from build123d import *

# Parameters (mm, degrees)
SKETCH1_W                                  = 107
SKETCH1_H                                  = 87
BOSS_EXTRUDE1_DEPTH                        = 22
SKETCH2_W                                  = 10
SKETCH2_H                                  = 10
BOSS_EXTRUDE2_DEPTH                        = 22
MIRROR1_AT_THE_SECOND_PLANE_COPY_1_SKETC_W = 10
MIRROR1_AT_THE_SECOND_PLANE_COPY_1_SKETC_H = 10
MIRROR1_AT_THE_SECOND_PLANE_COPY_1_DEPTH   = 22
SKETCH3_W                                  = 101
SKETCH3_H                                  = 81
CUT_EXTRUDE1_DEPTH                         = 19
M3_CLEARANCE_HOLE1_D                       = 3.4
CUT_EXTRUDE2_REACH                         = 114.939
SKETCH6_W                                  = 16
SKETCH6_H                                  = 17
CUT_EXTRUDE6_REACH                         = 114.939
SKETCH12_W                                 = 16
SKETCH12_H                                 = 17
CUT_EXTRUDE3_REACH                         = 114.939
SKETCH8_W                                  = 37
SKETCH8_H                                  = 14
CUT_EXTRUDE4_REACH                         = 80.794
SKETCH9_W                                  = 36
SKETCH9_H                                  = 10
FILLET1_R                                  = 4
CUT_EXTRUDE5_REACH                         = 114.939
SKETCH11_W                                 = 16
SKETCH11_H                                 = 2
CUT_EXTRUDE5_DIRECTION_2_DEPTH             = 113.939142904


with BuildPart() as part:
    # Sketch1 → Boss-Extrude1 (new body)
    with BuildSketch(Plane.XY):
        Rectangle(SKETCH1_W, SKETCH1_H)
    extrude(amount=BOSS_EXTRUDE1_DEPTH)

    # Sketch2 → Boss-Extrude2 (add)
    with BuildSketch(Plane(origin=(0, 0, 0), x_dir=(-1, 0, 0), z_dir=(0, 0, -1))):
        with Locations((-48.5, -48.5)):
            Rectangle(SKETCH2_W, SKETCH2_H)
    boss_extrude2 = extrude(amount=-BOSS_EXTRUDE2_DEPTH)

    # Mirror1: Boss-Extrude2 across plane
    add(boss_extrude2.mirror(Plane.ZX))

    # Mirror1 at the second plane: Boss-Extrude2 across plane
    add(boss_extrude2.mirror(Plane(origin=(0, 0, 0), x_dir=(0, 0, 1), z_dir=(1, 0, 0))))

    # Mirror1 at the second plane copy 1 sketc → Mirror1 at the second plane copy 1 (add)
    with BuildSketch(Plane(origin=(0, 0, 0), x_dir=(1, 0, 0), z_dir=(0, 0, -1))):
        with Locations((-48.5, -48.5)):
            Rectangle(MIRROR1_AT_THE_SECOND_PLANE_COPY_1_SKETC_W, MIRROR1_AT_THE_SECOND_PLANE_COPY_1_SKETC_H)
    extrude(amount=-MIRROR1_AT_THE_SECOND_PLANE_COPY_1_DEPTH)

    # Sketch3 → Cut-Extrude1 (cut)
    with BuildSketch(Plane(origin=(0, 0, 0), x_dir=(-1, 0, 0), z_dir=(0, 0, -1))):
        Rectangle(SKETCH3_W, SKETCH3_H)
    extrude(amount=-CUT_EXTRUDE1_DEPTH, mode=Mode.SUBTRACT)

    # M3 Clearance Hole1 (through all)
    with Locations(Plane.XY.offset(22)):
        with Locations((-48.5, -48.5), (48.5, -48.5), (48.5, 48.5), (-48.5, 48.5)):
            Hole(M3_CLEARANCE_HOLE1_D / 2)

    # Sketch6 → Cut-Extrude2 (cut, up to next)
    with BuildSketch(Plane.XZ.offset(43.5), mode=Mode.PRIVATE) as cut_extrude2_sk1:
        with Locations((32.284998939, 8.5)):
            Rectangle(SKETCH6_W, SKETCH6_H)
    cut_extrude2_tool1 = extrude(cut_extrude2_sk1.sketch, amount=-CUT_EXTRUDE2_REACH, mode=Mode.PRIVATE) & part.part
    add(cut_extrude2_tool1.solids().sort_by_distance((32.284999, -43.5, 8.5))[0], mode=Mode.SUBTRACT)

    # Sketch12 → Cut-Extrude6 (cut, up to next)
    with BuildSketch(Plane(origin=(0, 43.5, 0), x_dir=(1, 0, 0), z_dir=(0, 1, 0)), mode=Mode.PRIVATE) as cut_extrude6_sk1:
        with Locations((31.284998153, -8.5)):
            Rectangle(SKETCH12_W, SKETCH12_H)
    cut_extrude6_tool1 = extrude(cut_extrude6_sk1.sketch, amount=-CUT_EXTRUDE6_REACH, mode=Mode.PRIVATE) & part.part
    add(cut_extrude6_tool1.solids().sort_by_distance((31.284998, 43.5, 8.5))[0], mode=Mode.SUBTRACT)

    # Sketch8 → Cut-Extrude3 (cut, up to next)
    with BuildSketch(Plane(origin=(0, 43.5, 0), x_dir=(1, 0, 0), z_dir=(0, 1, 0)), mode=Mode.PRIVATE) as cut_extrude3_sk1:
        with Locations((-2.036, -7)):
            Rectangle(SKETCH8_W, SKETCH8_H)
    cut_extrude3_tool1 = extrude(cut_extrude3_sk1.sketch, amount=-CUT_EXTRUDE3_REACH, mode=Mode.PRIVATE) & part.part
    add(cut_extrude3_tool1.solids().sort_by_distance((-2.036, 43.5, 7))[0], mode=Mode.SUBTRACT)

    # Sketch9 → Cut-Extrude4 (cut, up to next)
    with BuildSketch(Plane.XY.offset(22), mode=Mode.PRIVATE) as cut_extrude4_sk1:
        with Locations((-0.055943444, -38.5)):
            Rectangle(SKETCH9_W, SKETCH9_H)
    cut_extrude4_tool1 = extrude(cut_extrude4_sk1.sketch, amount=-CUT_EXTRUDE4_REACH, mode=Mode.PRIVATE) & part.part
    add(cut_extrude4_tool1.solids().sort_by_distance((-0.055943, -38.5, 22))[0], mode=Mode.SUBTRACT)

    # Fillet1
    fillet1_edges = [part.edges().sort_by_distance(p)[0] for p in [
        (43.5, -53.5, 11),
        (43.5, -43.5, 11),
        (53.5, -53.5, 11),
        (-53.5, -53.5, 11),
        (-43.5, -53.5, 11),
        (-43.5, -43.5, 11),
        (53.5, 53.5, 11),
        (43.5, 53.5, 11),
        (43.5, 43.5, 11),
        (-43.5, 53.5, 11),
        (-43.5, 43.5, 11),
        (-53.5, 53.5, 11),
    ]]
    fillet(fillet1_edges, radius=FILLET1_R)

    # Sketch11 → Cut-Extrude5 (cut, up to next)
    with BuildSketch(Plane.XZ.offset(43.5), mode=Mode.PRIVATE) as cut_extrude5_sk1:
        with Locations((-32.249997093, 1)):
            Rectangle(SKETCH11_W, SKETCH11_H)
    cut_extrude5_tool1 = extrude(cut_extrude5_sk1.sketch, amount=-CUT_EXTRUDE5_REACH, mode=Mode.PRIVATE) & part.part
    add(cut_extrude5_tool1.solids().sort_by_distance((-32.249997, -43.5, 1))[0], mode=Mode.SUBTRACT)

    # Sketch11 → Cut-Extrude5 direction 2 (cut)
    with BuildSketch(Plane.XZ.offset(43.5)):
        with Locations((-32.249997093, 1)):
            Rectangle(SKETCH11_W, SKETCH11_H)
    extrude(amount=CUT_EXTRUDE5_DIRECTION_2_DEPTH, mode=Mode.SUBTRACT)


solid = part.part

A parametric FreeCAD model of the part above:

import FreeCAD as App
import Part
import Sketcher
Q = App.Units.Quantity


def edges_at(feature, points):
    """Names of the edges that pass closest to the given points."""
    edges = feature.Shape.Edges
    near = lambda p: min(range(len(edges)), key=lambda i: edges[i].distToShape(Part.Vertex(*p))[0])
    return sorted({f"Edge{near(p) + 1}" for p in points})


def add_polygon(sketch, points):
    """Adds a closed chain of lines whose ends are joined by coincident constraints."""
    first, n = sketch.GeometryCount, len(points)
    for a, b in zip(points, points[1:] + points[:1]):
        sketch.addGeometry(Part.LineSegment(App.Vector(*a, 0), App.Vector(*b, 0)), False)
    for i in range(n):
        sketch.addConstraint(Sketcher.Constraint("Coincident", first + i, 2, first + (i + 1) % n, 1))

doc = App.newDocument("Part")
body = doc.addObject("PartDesign::Body", "Body")

# Sketch on XY plane
sketch1 = body.newObject("Sketcher::SketchObject", "Sketch")
sketch1.AttachmentSupport = (doc.getObject("XY_Plane"), [""])
sketch1.MapMode = "FlatFace"
add_polygon(sketch1, [(-54, 44), (-54, -44), (54, -44), (54, 44)])  # lines 0-3
sketch1.addConstraint([
    Sketcher.Constraint("Vertical", 0),
    Sketcher.Constraint("Horizontal", 1),
    Sketcher.Constraint("Vertical", 2),
    Sketcher.Constraint("Horizontal", 3),
    Sketcher.Constraint("Symmetric", 0, 2, 2, 2, -1, 1),
    Sketcher.Constraint("DistanceX", 1, 1, 1, 2, Q("107 mm")),
    Sketcher.Constraint("DistanceY", 0, 2, 0, 1, Q("87 mm")),
])
pad1 = body.newObject("PartDesign::Pad", "Pad")
pad1.Profile = sketch1
pad1.Length = 22

# Sketch on XY plane
sketch2 = body.newObject("Sketcher::SketchObject", "Sketch001")
sketch2.AttachmentSupport = (doc.getObject("XY_Plane"), [""])
sketch2.MapMode = "FlatFace"
add_polygon(sketch2, [(54, -44), (54, -54), (44, -54), (44, -44)])  # lines 0-3
sketch2.addConstraint([
    Sketcher.Constraint("Vertical", 0),
    Sketcher.Constraint("Horizontal", 1),
    Sketcher.Constraint("Vertical", 2),
    Sketcher.Constraint("Horizontal", 3),
    Sketcher.Constraint("Equal", 3, 0),
    Sketcher.Constraint("DistanceX", 1, 2, 1, 1, Q("10 mm")),
    Sketcher.Constraint("DistanceX", -1, 1, 0, 2, Q("53.5 mm")),
    Sketcher.Constraint("DistanceY", 0, 2, -1, 1, Q("53.5 mm")),
])
pad2 = body.newObject("PartDesign::Pad", "Pad001")
pad2.Profile = sketch2
pad2.Length = 22
doc.recompute()

mirrored = body.newObject("PartDesign::Mirrored", "Mirrored")
mirrored.Originals = [pad2]
mirrored.MirrorPlane = (doc.getObject("XZ_Plane"), [""])
body.Tip = mirrored
doc.recompute()

mirrored2 = body.newObject("PartDesign::Mirrored", "Mirrored001")
mirrored2.Originals = [pad2]
mirrored2.MirrorPlane = (doc.getObject("YZ_Plane"), [""])
body.Tip = mirrored2

# Sketch on XY plane
sketch3 = body.newObject("Sketcher::SketchObject", "Sketch002")
sketch3.AttachmentSupport = (doc.getObject("XY_Plane"), [""])
sketch3.MapMode = "FlatFace"
add_polygon(sketch3, [(-54, 44), (-54, 54), (-44, 54), (-44, 44)])  # lines 0-3
sketch3.addConstraint([
    Sketcher.Constraint("Vertical", 0),
    Sketcher.Constraint("Horizontal", 1),
    Sketcher.Constraint("Vertical", 2),
    Sketcher.Constraint("Horizontal", 3),
    Sketcher.Constraint("Equal", 3, 0),
    Sketcher.Constraint("DistanceX", 1, 1, 1, 2, Q("10 mm")),
    Sketcher.Constraint("DistanceX", 0, 2, -1, 1, Q("53.5 mm")),
    Sketcher.Constraint("DistanceY", -1, 1, 0, 2, Q("53.5 mm")),
])
pad3 = body.newObject("PartDesign::Pad", "Pad002")
pad3.Profile = sketch3
pad3.Length = 22

# Sketch on XY plane
sketch4 = body.newObject("Sketcher::SketchObject", "Sketch003")
sketch4.AttachmentSupport = (doc.getObject("XY_Plane"), [""])
sketch4.MapMode = "FlatFace"
add_polygon(sketch4, [(50, 40), (50, -40), (-50, -40), (-50, 40)])  # lines 0-3
sketch4.addConstraint([
    Sketcher.Constraint("Vertical", 0),
    Sketcher.Constraint("Horizontal", 1),
    Sketcher.Constraint("Vertical", 2),
    Sketcher.Constraint("Horizontal", 3),
    Sketcher.Constraint("Symmetric", 0, 2, 2, 2, -1, 1),
    Sketcher.Constraint("DistanceX", 1, 2, 1, 1, Q("101 mm")),
    Sketcher.Constraint("DistanceY", 0, 2, 0, 1, Q("81 mm")),
])
pocket1 = body.newObject("PartDesign::Pocket", "Pocket")
pocket1.Profile = sketch4
pocket1.Length = 19
pocket1.Reversed = True

# Sketch on XY plane
sketch5 = body.newObject("Sketcher::SketchObject", "Sketch004")
sketch5.AttachmentSupport = (doc.getObject("XY_Plane"), [""])
sketch5.MapMode = "FlatFace"
sketch5.AttachmentOffset = App.Placement(App.Vector(0, 0, 22), App.Rotation())
sketch5.addGeometry([
    Part.Circle(App.Vector(-48.5, -48.5, 0), App.Vector(0, 0, 1), 1.7),
    Part.Circle(App.Vector(48.5, -48.5, 0), App.Vector(0, 0, 1), 1.7),
    Part.Circle(App.Vector(48.5, 48.5, 0), App.Vector(0, 0, 1), 1.7),
    Part.Circle(App.Vector(-48.5, 48.5, 0), App.Vector(0, 0, 1), 1.7),
], False)
sketch5.addConstraint([
    Sketcher.Constraint("Equal", 0, 1),
    Sketcher.Constraint("Equal", 1, 2),
    Sketcher.Constraint("Equal", 2, 3),
    Sketcher.Constraint("Symmetric", 0, 3, 2, 3, -1, 1),
    Sketcher.Constraint("Symmetric", 1, 3, 3, 3, -1, 1),
    Sketcher.Constraint("Symmetric", 0, 3, 1, 3, -2),
    Sketcher.Constraint("Diameter", 0, Q("3.4 mm")),
    Sketcher.Constraint("DistanceX", 0, 3, 1, 3, Q("97 mm")),
    Sketcher.Constraint("DistanceY", 1, 3, 2, 3, Q("97 mm")),
])
doc.recompute()
hole = body.newObject("PartDesign::Hole", "Hole")
hole.Profile = sketch5
hole.ThreadType = "None"
hole.Diameter = 3.4
hole.DepthType = "ThroughAll"

# Sketch on XZ plane
sketch6 = body.newObject("Sketcher::SketchObject", "Sketch005")
sketch6.AttachmentSupport = (doc.getObject("XZ_Plane"), [""])
sketch6.MapMode = "FlatFace"
sketch6.AttachmentOffset = App.Placement(App.Vector(0, 0, 43.5), App.Rotation())
add_polygon(sketch6, [(24, 17), (24, 0), (40, 0), (40, 17)])  # lines 0-3
sketch6.addConstraint([
    Sketcher.Constraint("Vertical", 0),
    Sketcher.Constraint("Horizontal", 1),
    Sketcher.Constraint("Vertical", 2),
    Sketcher.Constraint("Horizontal", 3),
    Sketcher.Constraint("PointOnObject", 0, 2, -1),
    Sketcher.Constraint("DistanceX", 1, 1, 1, 2, Q("16 mm")),
    Sketcher.Constraint("DistanceY", 0, 2, 0, 1, Q("17 mm")),
    Sketcher.Constraint("DistanceX", -1, 1, 0, 2, Q("24.284999 mm")),
])
pocket2 = body.newObject("PartDesign::Pocket", "Pocket001")
pocket2.Profile = sketch6
pocket2.Type = "UpToFirst"

# Sketch on XZ plane
sketch7 = body.newObject("Sketcher::SketchObject", "Sketch006")
sketch7.AttachmentSupport = (doc.getObject("XZ_Plane"), [""])
sketch7.MapMode = "FlatFace"
sketch7.AttachmentOffset = App.Placement(App.Vector(0, 0, -43.5), App.Rotation())
add_polygon(sketch7, [(23, 0), (23, 17), (39, 17), (39, 0)])  # lines 0-3
sketch7.addConstraint([
    Sketcher.Constraint("Vertical", 0),
    Sketcher.Constraint("Horizontal", 1),
    Sketcher.Constraint("Vertical", 2),
    Sketcher.Constraint("Horizontal", 3),
    Sketcher.Constraint("PointOnObject", 2, 2, -1),
    Sketcher.Constraint("DistanceX", 1, 1, 1, 2, Q("16 mm")),
    Sketcher.Constraint("DistanceY", 0, 1, 0, 2, Q("17 mm")),
    Sketcher.Constraint("DistanceX", -1, 1, 0, 2, Q("23.284998 mm")),
])
pocket3 = body.newObject("PartDesign::Pocket", "Pocket002")
pocket3.Profile = sketch7
pocket3.Type = "UpToFirst"
pocket3.Reversed = True

# Sketch on XZ plane
sketch8 = body.newObject("Sketcher::SketchObject", "Sketch007")
sketch8.AttachmentSupport = (doc.getObject("XZ_Plane"), [""])
sketch8.MapMode = "FlatFace"
sketch8.AttachmentOffset = App.Placement(App.Vector(0, 0, -43.5), App.Rotation())
add_polygon(sketch8, [(-21, 0), (-21, 14), (16, 14), (16, 0)])  # lines 0-3
sketch8.addConstraint([
    Sketcher.Constraint("Vertical", 0),
    Sketcher.Constraint("Horizontal", 1),
    Sketcher.Constraint("Vertical", 2),
    Sketcher.Constraint("Horizontal", 3),
    Sketcher.Constraint("PointOnObject", 2, 2, -1),
    Sketcher.Constraint("DistanceX", 1, 1, 1, 2, Q("37 mm")),
    Sketcher.Constraint("DistanceY", 0, 1, 0, 2, Q("14 mm")),
    Sketcher.Constraint("DistanceX", 0, 2, -1, 1, Q("20.536 mm")),
])
pocket4 = body.newObject("PartDesign::Pocket", "Pocket003")
pocket4.Profile = sketch8
pocket4.Type = "UpToFirst"
pocket4.Reversed = True

# Sketch on XY plane
sketch9 = body.newObject("Sketcher::SketchObject", "Sketch008")
sketch9.AttachmentSupport = (doc.getObject("XY_Plane"), [""])
sketch9.MapMode = "FlatFace"
sketch9.AttachmentOffset = App.Placement(App.Vector(0, 0, 22), App.Rotation())
add_polygon(sketch9, [(-18, -34), (-18, -44), (18, -44), (18, -34)])  # lines 0-3
sketch9.addConstraint([
    Sketcher.Constraint("Vertical", 0),
    Sketcher.Constraint("Horizontal", 1),
    Sketcher.Constraint("Vertical", 2),
    Sketcher.Constraint("Horizontal", 3),
    Sketcher.Constraint("DistanceX", 1, 1, 1, 2, Q("36 mm")),
    Sketcher.Constraint("DistanceY", 0, 2, 0, 1, Q("10 mm")),
    Sketcher.Constraint("DistanceY", 0, 2, -1, 1, Q("43.5 mm")),
    Sketcher.Constraint("DistanceX", 0, 2, -1, 1, Q("18.055943 mm")),
])
pocket5 = body.newObject("PartDesign::Pocket", "Pocket004")
pocket5.Profile = sketch9
pocket5.Length = 22
doc.recompute()

fillet = body.newObject("PartDesign::Fillet", "Fillet")
fillet.Base = (pocket5, edges_at(pocket5, [
    (43.5, -53.5, 11),
    (43.5, -43.5, 11),
    (53.5, -53.5, 11),
    (-53.5, -53.5, 11),
    (-43.5, -53.5, 11),
    (-43.5, -43.5, 11),
    (53.5, 53.5, 11),
    (43.5, 53.5, 11),
    (43.5, 43.5, 11),
    (-43.5, 53.5, 11),
    (-43.5, 43.5, 11),
    (-53.5, 53.5, 11),
]))
fillet.Radius = 4

# Sketch on XZ plane
sketch10 = body.newObject("Sketcher::SketchObject", "Sketch009")
sketch10.AttachmentSupport = (doc.getObject("XZ_Plane"), [""])
sketch10.MapMode = "FlatFace"
sketch10.AttachmentOffset = App.Placement(App.Vector(0, 0, 43.5), App.Rotation())
add_polygon(sketch10, [(-40.2, 2), (-40.2, 0), (-24.2, 0), (-24.2, 2)])  # lines 0-3
sketch10.addConstraint([
    Sketcher.Constraint("Vertical", 0),
    Sketcher.Constraint("Horizontal", 1),
    Sketcher.Constraint("Vertical", 2),
    Sketcher.Constraint("Horizontal", 3),
    Sketcher.Constraint("PointOnObject", 0, 2, -1),
    Sketcher.Constraint("DistanceX", 1, 1, 1, 2, Q("16 mm")),
    Sketcher.Constraint("DistanceY", 0, 2, 0, 1, Q("2 mm")),
    Sketcher.Constraint("DistanceX", 0, 2, -1, 1, Q("40.249997 mm")),
])
pocket6 = body.newObject("PartDesign::Pocket", "Pocket005")
pocket6.Profile = sketch10
pocket6.Type = "UpToFirst"

# Sketch on XZ plane
sketch11 = body.newObject("Sketcher::SketchObject", "Sketch010")
sketch11.AttachmentSupport = (doc.getObject("XZ_Plane"), [""])
sketch11.MapMode = "FlatFace"
sketch11.AttachmentOffset = App.Placement(App.Vector(0, 0, 43.5), App.Rotation())
add_polygon(sketch11, [(-40.2, 2), (-40.2, 0), (-24.2, 0), (-24.2, 2)])  # lines 0-3
sketch11.addConstraint([
    Sketcher.Constraint("Vertical", 0),
    Sketcher.Constraint("Horizontal", 1),
    Sketcher.Constraint("Vertical", 2),
    Sketcher.Constraint("Horizontal", 3),
    Sketcher.Constraint("PointOnObject", 0, 2, -1),
    Sketcher.Constraint("DistanceX", 1, 1, 1, 2, Q("16 mm")),
    Sketcher.Constraint("DistanceY", 0, 2, 0, 1, Q("2 mm")),
    Sketcher.Constraint("DistanceX", 0, 2, -1, 1, Q("40.249997 mm")),
])
pocket7 = body.newObject("PartDesign::Pocket", "Pocket006")
pocket7.Profile = sketch11
pocket7.Length = 113.939143
pocket7.Reversed = True

doc.recompute()
